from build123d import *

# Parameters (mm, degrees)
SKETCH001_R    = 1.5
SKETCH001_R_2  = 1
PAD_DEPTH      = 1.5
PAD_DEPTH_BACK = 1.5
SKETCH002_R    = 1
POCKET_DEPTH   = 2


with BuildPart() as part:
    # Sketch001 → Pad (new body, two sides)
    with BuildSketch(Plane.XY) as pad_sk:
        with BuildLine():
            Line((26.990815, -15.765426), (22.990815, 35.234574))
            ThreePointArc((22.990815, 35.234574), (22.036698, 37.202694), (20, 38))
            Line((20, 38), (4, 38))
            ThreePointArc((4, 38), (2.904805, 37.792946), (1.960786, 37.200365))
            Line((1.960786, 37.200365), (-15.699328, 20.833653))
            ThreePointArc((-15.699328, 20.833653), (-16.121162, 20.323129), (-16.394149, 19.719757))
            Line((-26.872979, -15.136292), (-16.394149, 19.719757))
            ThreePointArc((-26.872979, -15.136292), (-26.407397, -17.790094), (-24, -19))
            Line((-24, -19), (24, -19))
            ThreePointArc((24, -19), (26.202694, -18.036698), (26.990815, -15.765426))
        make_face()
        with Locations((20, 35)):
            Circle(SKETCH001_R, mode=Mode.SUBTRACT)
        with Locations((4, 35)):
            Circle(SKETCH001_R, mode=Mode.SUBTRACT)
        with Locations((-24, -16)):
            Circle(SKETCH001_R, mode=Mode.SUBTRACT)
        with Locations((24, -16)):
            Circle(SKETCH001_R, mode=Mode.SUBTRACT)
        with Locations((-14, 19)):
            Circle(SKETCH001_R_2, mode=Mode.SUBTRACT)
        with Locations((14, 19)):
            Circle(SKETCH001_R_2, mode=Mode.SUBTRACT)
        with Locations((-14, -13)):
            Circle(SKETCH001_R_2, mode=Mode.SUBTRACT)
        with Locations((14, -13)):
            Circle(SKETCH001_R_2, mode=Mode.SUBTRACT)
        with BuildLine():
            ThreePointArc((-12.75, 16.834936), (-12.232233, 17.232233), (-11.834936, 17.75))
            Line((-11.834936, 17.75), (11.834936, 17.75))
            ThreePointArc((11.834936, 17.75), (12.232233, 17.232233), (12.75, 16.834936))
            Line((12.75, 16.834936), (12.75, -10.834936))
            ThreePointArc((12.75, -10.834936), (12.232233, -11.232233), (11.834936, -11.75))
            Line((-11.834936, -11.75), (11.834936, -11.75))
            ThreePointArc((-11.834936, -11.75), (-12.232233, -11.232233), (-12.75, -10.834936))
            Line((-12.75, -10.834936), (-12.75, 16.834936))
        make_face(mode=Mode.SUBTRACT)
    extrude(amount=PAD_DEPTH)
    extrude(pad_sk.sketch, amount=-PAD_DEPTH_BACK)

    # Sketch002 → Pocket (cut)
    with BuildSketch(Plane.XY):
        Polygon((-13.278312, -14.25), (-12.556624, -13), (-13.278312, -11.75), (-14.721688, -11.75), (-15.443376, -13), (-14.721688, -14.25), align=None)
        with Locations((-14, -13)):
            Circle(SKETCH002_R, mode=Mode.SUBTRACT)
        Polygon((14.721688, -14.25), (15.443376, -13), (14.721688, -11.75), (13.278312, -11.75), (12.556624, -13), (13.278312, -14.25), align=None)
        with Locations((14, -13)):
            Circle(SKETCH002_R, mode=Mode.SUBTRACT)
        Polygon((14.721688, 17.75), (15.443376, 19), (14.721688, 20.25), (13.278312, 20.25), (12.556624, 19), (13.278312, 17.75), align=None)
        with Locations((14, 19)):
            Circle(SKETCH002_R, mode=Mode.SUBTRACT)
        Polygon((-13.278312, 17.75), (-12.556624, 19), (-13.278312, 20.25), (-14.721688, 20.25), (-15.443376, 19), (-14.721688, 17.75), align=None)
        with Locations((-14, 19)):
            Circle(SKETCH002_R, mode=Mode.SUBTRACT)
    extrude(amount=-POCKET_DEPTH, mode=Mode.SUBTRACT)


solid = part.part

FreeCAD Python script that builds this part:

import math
import FreeCAD as App
import Part
import Sketcher
from FreeCAD import Vector
Q = App.Units.Quantity


def add_polygon(sketch, points):
    """Adds a closed chain of lines whose ends are joined by coincident constraints."""
    first, n = sketch.GeometryCount, len(points)
    for a, b in zip(points, points[1:] + points[:1]):
        sketch.addGeometry(Part.LineSegment(App.Vector(*a, 0), App.Vector(*b, 0)), False)
    for i in range(n):
        sketch.addConstraint(Sketcher.Constraint("Coincident", first + i, 2, first + (i + 1) % n, 1))

doc = App.newDocument("Part")
body = doc.addObject("PartDesign::Body", "Body")

# Sketch on XY plane
sketch1 = body.newObject("Sketcher::SketchObject", "Sketch")
sketch1.AttachmentSupport = (doc.getObject("XY_Plane"), [""])
sketch1.MapMode = "FlatFace"
sketch1.addGeometry(Part.LineSegment(Vector(26.990815, -15.765426, 0), Vector(22.990815, 35.234574, 0)), False)
sketch1.addGeometry(Part.ArcOfCircle(Part.Circle(Vector(20, 35, 0), Vector(0, 0, 1), 3), math.radians(4.484611), math.radians(89.999998)), False)
sketch1.addGeometry(Part.LineSegment(Vector(20, 38, 0), Vector(4, 38, 0)), False)
sketch1.addGeometry(Part.ArcOfCircle(Part.Circle(Vector(4, 34.999999, 0), Vector(0, 0, 1), 3.000001), math.radians(90.000009), math.radians(132.823166)), False)
sketch1.addGeometry(Part.LineSegment(Vector(1.960786, 37.200365, 0), Vector(-15.699328, 20.833653, 0)), False)
sketch1.addGeometry(Part.ArcOfCircle(Part.Circle(Vector(-13.999997, 18.999998, 0), Vector(0, 0, 1), 2.500004), math.radians(132.822665), math.radians(163.267529)), False)
sketch1.addGeometry(Part.LineSegment(Vector(-16.394149, 19.719757, 0), Vector(-26.872979, -15.136292, 0)), False)
sketch1.addGeometry(Part.ArcOfCircle(Part.Circle(Vector(-23.999999, -15.999999, 0), Vector(0, 0, 1), 3.000001), math.radians(163.267586), math.radians(269.99998)), False)
sketch1.addGeometry(Part.LineSegment(Vector(-24, -19, 0), Vector(24, -19, 0)), False)
sketch1.addGeometry(Part.ArcOfCircle(Part.Circle(Vector(24, -16, 0), Vector(0, 0, 1), 3), math.radians(-89.999999), math.radians(4.484612)), False)
sketch1.addGeometry(Part.Circle(Vector(-24, -16, 0), Vector(0, 0, 1), 1.5), False)
sketch1.addGeometry(Part.Circle(Vector(-14, -13, 0), Vector(0, 0, 1), 1), False)
sketch1.addGeometry(Part.LineSegment(Vector(-12.75, -10.834936, 0), Vector(-12.75, 16.834936, 0)), False)
sketch1.addGeometry(Part.ArcOfCircle(Part.Circle(Vector(-14.000007, 19.000007, 0), Vector(0, 0, 1), 2.500011), math.radians(-59.999943), math.radians(-30.000057)), False)
sketch1.addGeometry(Part.LineSegment(Vector(-11.834936, 17.75, 0), Vector(11.834936, 17.75, 0)), False)
sketch1.addGeometry(Part.ArcOfCircle(Part.Circle(Vector(14.000007, 19.000007, 0), Vector(0, 0, 1), 2.500011), math.radians(-149.999943), math.radians(-120.000057)), False)
sketch1.addGeometry(Part.LineSegment(Vector(12.75, 16.834936, 0), Vector(12.75, -10.834936, 0)), False)
sketch1.addGeometry(Part.ArcOfCircle(Part.Circle(Vector(14.000007, -13.000007, 0), Vector(0, 0, 1), 2.500011), math.radians(120.000057), math.radians(149.999943)), False)
sketch1.addGeometry(Part.LineSegment(Vector(11.834936, -11.75, 0), Vector(-11.834936, -11.75, 0)), False)
sketch1.addGeometry(Part.ArcOfCircle(Part.Circle(Vector(-14.000007, -13.000007, 0), Vector(0, 0, 1), 2.500011), math.radians(30.000057), math.radians(59.999943)), False)
sketch1.addGeometry(Part.Circle(Vector(14, -13, 0), Vector(0, 0, 1), 1), False)
sketch1.addGeometry(Part.Circle(Vector(24, -16, 0), Vector(0, 0, 1), 1.5), False)
sketch1.addGeometry(Part.Circle(Vector(-14, 19, 0), Vector(0, 0, 1), 1), False)
sketch1.addGeometry(Part.Circle(Vector(14, 19, 0), Vector(0, 0, 1), 1), False)
sketch1.addGeometry(Part.Circle(Vector(4, 35, 0), Vector(0, 0, 1), 1.5), False)
sketch1.addGeometry(Part.Circle(Vector(20, 35, 0), Vector(0, 0, 1), 1.5), False)
sketch1.addConstraint(Sketcher.Constraint("Tangent", 0, 2, 1, 1))
sketch1.addConstraint(Sketcher.Constraint("Tangent", 1, 2, 2, 1))
sketch1.addConstraint(Sketcher.Constraint("Tangent", 2, 2, 3, 1))
sketch1.addConstraint(Sketcher.Constraint("Tangent", 3, 2, 4, 1))
sketch1.addConstraint(Sketcher.Constraint("Coincident", 4, 2, 5, 1))
sketch1.addConstraint(Sketcher.Constraint("Tangent", 5, 2, 6, 1))
sketch1.addConstraint(Sketcher.Constraint("Tangent", 6, 2, 7, 1))
sketch1.addConstraint(Sketcher.Constraint("Tangent", 7, 2, 8, 1))
sketch1.addConstraint(Sketcher.Constraint("Tangent", 8, 2, 9, 1))
sketch1.addConstraint(Sketcher.Constraint("Tangent", 9, 2, 0, 1))
sketch1.addConstraint(Sketcher.Constraint("Coincident", 12, 2, 13, 1))
sketch1.addConstraint(Sketcher.Constraint("Coincident", 13, 2, 14, 1))
sketch1.addConstraint(Sketcher.Constraint("Coincident", 14, 2, 15, 1))
sketch1.addConstraint(Sketcher.Constraint("Coincident", 15, 2, 16, 1))
sketch1.addConstraint(Sketcher.Constraint("Coincident", 16, 2, 17, 1))
sketch1.addConstraint(Sketcher.Constraint("Coincident", 17, 2, 18, 1))
sketch1.addConstraint(Sketcher.Constraint("Coincident", 18, 2, 19, 1))
sketch1.addConstraint(Sketcher.Constraint("Coincident", 19, 2, 12, 1))
sketch1.addConstraint(Sketcher.Constraint("Horizontal", 2))
sketch1.addConstraint(Sketcher.Constraint("Horizontal", 8))
sketch1.addConstraint(Sketcher.Constraint("Vertical", 12))
sketch1.addConstraint(Sketcher.Constraint("Horizontal", 14))
sketch1.addConstraint(Sketcher.Constraint("Vertical", 16))
sketch1.addConstraint(Sketcher.Constraint("Horizontal", 18))
sketch1.addConstraint(Sketcher.Constraint("Coincident", 10, 3, 7, 3))
sketch1.addConstraint(Sketcher.Constraint("Coincident", 21, 3, 9, 3))
sketch1.addConstraint(Sketcher.Constraint("Coincident", 22, 3, 5, 3))
sketch1.addConstraint(Sketcher.Constraint("Coincident", 24, 3, 3, 3))
sketch1.addConstraint(Sketcher.Constraint("Coincident", 25, 3, 1, 3))
sketch1.addConstraint(Sketcher.Constraint("Equal", 1, 3))
sketch1.addConstraint(Sketcher.Constraint("Equal", 3, 7))
sketch1.addConstraint(Sketcher.Constraint("Equal", 7, 9))
sketch1.addConstraint(Sketcher.Constraint("Equal", 13, 15))
sketch1.addConstraint(Sketcher.Constraint("Equal", 15, 17))
sketch1.addConstraint(Sketcher.Constraint("Equal", 17, 19))
sketch1.addConstraint(Sketcher.Constraint("Equal", 11, 20))
sketch1.addConstraint(Sketcher.Constraint("Equal", 10, 21))
sketch1.addConstraint(Sketcher.Constraint("Equal", 20, 22))
sketch1.addConstraint(Sketcher.Constraint("Equal", 22, 23))
sketch1.addConstraint(Sketcher.Constraint("Equal", 21, 24))
sketch1.addConstraint(Sketcher.Constraint("Equal", 24, 25))
sketch1.addConstraint(Sketcher.Constraint("Symmetric", 13, 3, 15, 3, -2))
sketch1.addConstraint(Sketcher.Constraint("Symmetric", 17, 3, 19, 3, -2))
sketch1.addConstraint(Sketcher.Constraint("Symmetric", 11, 3, 20, 3, -2))
sketch1.addConstraint(Sketcher.Constraint("Symmetric", 5, 3, 23, 3, -2))
sketch1.addConstraint(Sketcher.Constraint("Horizontal", 12, 2, 15, 2))
sketch1.addConstraint(Sketcher.Constraint("Vertical", 15, 3, 17, 3))
sketch1.addConstraint(Sketcher.Constraint("Vertical", 11, 3, 22, 3))
sketch1.addConstraint(Sketcher.Constraint("Vertical", 14, 2, 17, 2))
sketch1.addConstraint(Sketcher.Constraint("Diameter", 10, Q("3 mm")))
sketch1.addConstraint(Sketcher.Constraint("Diameter", 11, Q("2 mm")))
sketch1.addConstraint(Sketcher.Constraint("Radius", 1, Q("3 mm")))
sketch1.addConstraint(Sketcher.Constraint("DistanceX", 2, 2, 2, 1, Q("16 mm")))
sketch1.addConstraint(Sketcher.Constraint("DistanceX", 8, 1, 8, 2, Q("48 mm")))
sketch1.addConstraint(Sketcher.Constraint("DistanceX", -1, 1, 1, 3, Q("20 mm")))
sketch1.addConstraint(Sketcher.Constraint("DistanceY", -1, 1, 1, 3, Q("35 mm")))
sketch1.addConstraint(Sketcher.Constraint("DistanceX", 7, 3, -1, 1, Q("23.999999 mm")))
sketch1.addConstraint(Sketcher.Constraint("DistanceY", 7, 3, -1, 1, Q("15.999999 mm")))
sketch1.addConstraint(Sketcher.Constraint("DistanceX", 11, 3, -1, 1, Q("14 mm")))
sketch1.addConstraint(Sketcher.Constraint("DistanceY", 11, 3, -1, 1, Q("13 mm")))
sketch1.addConstraint(Sketcher.Constraint("DistanceY", -1, 1, 22, 3, Q("19 mm")))
sketch1.addConstraint(Sketcher.Constraint("DistanceX", 12, 2, -1, 1, Q("12.75 mm")))
sketch1.addConstraint(Sketcher.Constraint("DistanceY", -1, 1, 13, 2, Q("17.75 mm")))
sketch1.addConstraint(Sketcher.Constraint("DistanceY", 17, 2, -1, 1, Q("11.75 mm")))
sketch1.addConstraint(Sketcher.Constraint("Radius", 13, Q("2.500011 mm")))
sketch1.addConstraint(Sketcher.Constraint("Radius", 5, Q("2.500004 mm")))
sketch1.addConstraint(Sketcher.Constraint("DistanceY", 12, 1, 12, 2, Q("27.669872 mm")))
sketch1.addConstraint(Sketcher.Constraint("DistanceX", 14, 1, 14, 2, Q("23.669872 mm")))
sketch1.addConstraint(Sketcher.Constraint("DistanceX", 4, 2, 13, 3, Q("1.699321 mm")))
pad1 = body.newObject("PartDesign::Pad", "Pad")
pad1.Profile = sketch1
pad1.Type = "TwoLengths"
pad1.Length = 1.5
pad1.Length2 = 1.5

# Sketch on XY plane
sketch2 = body.newObject("Sketcher::SketchObject", "Sketch001")
sketch2.AttachmentSupport = (doc.getObject("XY_Plane"), [""])
sketch2.MapMode = "FlatFace"
add_polygon(sketch2, [(-13.278312, -14.25), (-12.556624, -13), (-13.278312, -11.75), (-14.721688, -11.75), (-15.443376, -13), (-14.721688, -14.25)])  # lines 0-5
sketch2.addGeometry(Part.Circle(Vector(-14, -13, 0), Vector(0, 0, 1), 1), False)  # 6
add_polygon(sketch2, [(14.721688, -14.25), (15.443376, -13), (14.721688, -11.75), (13.278312, -11.75), (12.556624, -13), (13.278312, -14.25)])  # lines 7-12
sketch2.addGeometry(Part.Circle(Vector(14, -13, 0), Vector(0, 0, 1), 1), False)  # 13
add_polygon(sketch2, [(14.721688, 17.75), (15.443376, 19), (14.721688, 20.25), (13.278312, 20.25), (12.556624, 19), (13.278312, 17.75)])  # lines 14-19
sketch2.addGeometry(Part.Circle(Vector(14, 19, 0), Vector(0, 0, 1), 1), False)  # 20
add_polygon(sketch2, [(-13.278312, 17.75), (-12.556624, 19), (-13.278312, 20.25), (-14.721688, 20.25), (-15.443376, 19), (-14.721688, 17.75)])  # lines 21-26
sketch2.addGeometry(Part.Circle(Vector(-14, 19, 0), Vector(0, 0, 1), 1), False)  # 27
sketch2.addConstraint(Sketcher.Constraint("Horizontal", 2))
sketch2.addConstraint(Sketcher.Constraint("Horizontal", 5))
sketch2.addConstraint(Sketcher.Constraint("Horizontal", 9))
sketch2.addConstraint(Sketcher.Constraint("Horizontal", 12))
sketch2.addConstraint(Sketcher.Constraint("Horizontal", 16))
sketch2.addConstraint(Sketcher.Constraint("Horizontal", 19))
sketch2.addConstraint(Sketcher.Constraint("Horizontal", 23))
sketch2.addConstraint(Sketcher.Constraint("Horizontal", 26))
sketch2.addConstraint(Sketcher.Constraint("Equal", 6, 13))
sketch2.addConstraint(Sketcher.Constraint("Equal", 13, 20))
sketch2.addConstraint(Sketcher.Constraint("Equal", 20, 27))
sketch2.addConstraint(Sketcher.Constraint("Symmetric", 6, 3, 13, 3, -2))
sketch2.addConstraint(Sketcher.Constraint("Symmetric", 20, 3, 27, 3, -2))
sketch2.addConstraint(Sketcher.Constraint("Symmetric", 3, 2, 7, 2, -2))
sketch2.addConstraint(Sketcher.Constraint("Symmetric", 2, 2, 8, 2, -2))
sketch2.addConstraint(Sketcher.Constraint("Symmetric", 0, 2, 10, 2, -2))
sketch2.addConstraint(Sketcher.Constraint("Symmetric", 5, 2, 11, 2, -2))
sketch2.addConstraint(Sketcher.Constraint("Symmetric", 17, 2, 21, 2, -2))
sketch2.addConstraint(Sketcher.Constraint("Symmetric", 16, 2, 22, 2, -2))
sketch2.addConstraint(Sketcher.Constraint("Symmetric", 14, 2, 24, 2, -2))
sketch2.addConstraint(Sketcher.Constraint("Symmetric", 19, 2, 25, 2, -2))
sketch2.addConstraint(Sketcher.Constraint("Parallel", 0, 3))
sketch2.addConstraint(Sketcher.Constraint("Parallel", 1, 4))
sketch2.addConstraint(Sketcher.Constraint("Parallel", 3, 7))
sketch2.addConstraint(Sketcher.Constraint("Parallel", 4, 8))
sketch2.addConstraint(Sketcher.Constraint("Parallel", 7, 10))
sketch2.addConstraint(Sketcher.Constraint("Parallel", 10, 14))
sketch2.addConstraint(Sketcher.Constraint("Parallel", 11, 15))
sketch2.addConstraint(Sketcher.Constraint("Parallel", 14, 17))
sketch2.addConstraint(Sketcher.Constraint("Parallel", 15, 18))
sketch2.addConstraint(Sketcher.Constraint("Parallel", 17, 21))
sketch2.addConstraint(Sketcher.Constraint("Parallel", 21, 24))
sketch2.addConstraint(Sketcher.Constraint("Horizontal", 13, 3, 0, 2))
sketch2.addConstraint(Sketcher.Constraint("Horizontal", 0, 2, 3, 2))
sketch2.addConstraint(Sketcher.Constraint("Horizontal", 27, 3, 14, 2))
sketch2.addConstraint(Sketcher.Constraint("Horizontal", 14, 2, 17, 2))
sketch2.addConstraint(Sketcher.Constraint("Vertical", 13, 3, 20, 3))
sketch2.addConstraint(Sketcher.Constraint("Vertical", 2, 2, 4, 2))
sketch2.addConstraint(Sketcher.Constraint("Vertical", 7, 2, 14, 2))
sketch2.addConstraint(Sketcher.Constraint("Vertical", 12, 2, 15, 2))
sketch2.addConstraint(Sketcher.Constraint("Vertical", 11, 2, 16, 2))
sketch2.addConstraint(Sketcher.Constraint("Vertical", 16, 2, 18, 2))
sketch2.addConstraint(Sketcher.Constraint("Diameter", 6, Q("2 mm")))
sketch2.addConstraint(Sketcher.Constraint("Angle", 0, Q("59.999994 deg")))
sketch2.addConstraint(Sketcher.Constraint("DistanceX", 6, 3, -1, 1, Q("14 mm")))
sketch2.addConstraint(Sketcher.Constraint("DistanceY", 6, 3, -1, 1, Q("13 mm")))
sketch2.addConstraint(Sketcher.Constraint("DistanceY", -1, 1, 20, 3, Q("19 mm")))
sketch2.addConstraint(Sketcher.Constraint("DistanceX", 0, 2, 7, 2, Q("28 mm")))
sketch2.addConstraint(Sketcher.Constraint("DistanceY", 4, 2, 2, 2, Q("2.5 mm")))
sketch2.addConstraint(Sketcher.Constraint("DistanceX", 2, 2, 2, 1, Q("1.443376 mm")))
pocket1 = body.newObject("PartDesign::Pocket", "Pocket")
pocket1.Profile = sketch2
pocket1.Length = 2

doc.recompute()
